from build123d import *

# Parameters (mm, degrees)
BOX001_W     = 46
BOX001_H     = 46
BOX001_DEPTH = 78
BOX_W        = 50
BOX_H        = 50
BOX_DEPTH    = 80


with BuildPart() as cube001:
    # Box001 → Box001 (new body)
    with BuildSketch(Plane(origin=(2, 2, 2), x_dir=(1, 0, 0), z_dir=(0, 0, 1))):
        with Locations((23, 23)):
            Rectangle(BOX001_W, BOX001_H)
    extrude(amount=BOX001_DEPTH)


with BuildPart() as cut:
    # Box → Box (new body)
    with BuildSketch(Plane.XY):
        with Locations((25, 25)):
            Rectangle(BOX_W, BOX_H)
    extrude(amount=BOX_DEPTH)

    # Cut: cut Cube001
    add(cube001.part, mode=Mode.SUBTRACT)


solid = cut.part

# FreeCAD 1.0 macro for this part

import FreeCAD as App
import Part
import Sketcher
Q = App.Units.Quantity

doc = App.newDocument("Part")
params = doc.addObject("Spreadsheet::Sheet", "Params")
for row, (alias, value) in enumerate([
    ("sketch1_width", "46 mm"),
    ("pad1_length", "78 mm"),
    ("sketch2_width", "50 mm"),
    ("pad2_length", "80 mm"),
], start=1):
    params.set(f"A{row}", alias)
    params.set(f"B{row}", "=" + value)
    params.setAlias(f"B{row}", alias)

body = doc.addObject("PartDesign::Body", "Body")

sketch1 = body.newObject("Sketcher::SketchObject", "Sketch")
sketch1.AttachmentSupport = (doc.getObject("XY_Plane"), [""])
sketch1.MapMode = "FlatFace"
sketch1.AttachmentOffset = App.Placement(App.Vector(0, 0, 2), App.Rotation())
sketch1.addGeometry([
    Part.LineSegment(App.Vector(2, 48, 0), App.Vector(2, 2, 0)),
    Part.LineSegment(App.Vector(2, 2, 0), App.Vector(48, 2, 0)),
    Part.LineSegment(App.Vector(48, 2, 0), App.Vector(48, 48, 0)),
    Part.LineSegment(App.Vector(48, 48, 0), App.Vector(2, 48, 0)),
], False)
sketch1.addConstraint([
    Sketcher.Constraint("Coincident", 0, 2, 1, 1),
    Sketcher.Constraint("Coincident", 1, 2, 2, 1),
    Sketcher.Constraint("Coincident", 2, 2, 3, 1),
    Sketcher.Constraint("Coincident", 3, 2, 0, 1),
    Sketcher.Constraint("Vertical", 0),
    Sketcher.Constraint("Horizontal", 1),
    Sketcher.Constraint("Vertical", 2),
    Sketcher.Constraint("Horizontal", 3),
    Sketcher.Constraint("Equal", 3, 0),
    Sketcher.Constraint("DistanceX", 1, 1, 1, 2, Q("46 mm")),
    Sketcher.Constraint("DistanceX", -1, 1, 0, 2, Q("2 mm")),
    Sketcher.Constraint("DistanceY", -1, 1, 0, 2, Q("2 mm")),
])
sketch1.setExpression("Constraints[9]", "Params.sketch1_width")
pad1 = body.newObject("PartDesign::Pad", "Pad")
pad1.Profile = sketch1
pad1.setExpression("Length", "Params.pad1_length")
body2 = doc.addObject("PartDesign::Body", "Body001")

sketch2 = body2.newObject("Sketcher::SketchObject", "Sketch001")
sketch2.AttachmentSupport = (doc.getObject("XY_Plane001"), [""])
sketch2.MapMode = "FlatFace"
sketch2.addGeometry([
    Part.LineSegment(App.Vector(0, 50, 0), App.Vector(0, 0, 0)),
    Part.LineSegment(App.Vector(0, 0, 0), App.Vector(50, 0, 0)),
    Part.LineSegment(App.Vector(50, 0, 0), App.Vector(50, 50, 0)),
    Part.LineSegment(App.Vector(50, 50, 0), App.Vector(0, 50, 0)),
], False)
sketch2.addConstraint([
    Sketcher.Constraint("Coincident", 0, 2, 1, 1),
    Sketcher.Constraint("Coincident", 1, 2, 2, 1),
    Sketcher.Constraint("Coincident", 2, 2, 3, 1),
    Sketcher.Constraint("Coincident", 3, 2, 0, 1),
    Sketcher.Constraint("Vertical", 0),
    Sketcher.Constraint("Horizontal", 1),
    Sketcher.Constraint("Vertical", 2),
    Sketcher.Constraint("Horizontal", 3),
    Sketcher.Constraint("Coincident", 0, 2, -1, 1),
    Sketcher.Constraint("Equal", 3, 0),
    Sketcher.Constraint("DistanceX", 1, 1, 1, 2, Q("50 mm")),
])
sketch2.setExpression("Constraints[10]", "Params.sketch2_width")
pad2 = body2.newObject("PartDesign::Pad", "Pad001")
pad2.Profile = sketch2
pad2.setExpression("Length", "Params.pad2_length")
doc.recompute()

boolean = body2.newObject("PartDesign::Boolean", "Boolean")
boolean.Type = "Cut"
boolean.addObjects([body])

doc.recompute()
